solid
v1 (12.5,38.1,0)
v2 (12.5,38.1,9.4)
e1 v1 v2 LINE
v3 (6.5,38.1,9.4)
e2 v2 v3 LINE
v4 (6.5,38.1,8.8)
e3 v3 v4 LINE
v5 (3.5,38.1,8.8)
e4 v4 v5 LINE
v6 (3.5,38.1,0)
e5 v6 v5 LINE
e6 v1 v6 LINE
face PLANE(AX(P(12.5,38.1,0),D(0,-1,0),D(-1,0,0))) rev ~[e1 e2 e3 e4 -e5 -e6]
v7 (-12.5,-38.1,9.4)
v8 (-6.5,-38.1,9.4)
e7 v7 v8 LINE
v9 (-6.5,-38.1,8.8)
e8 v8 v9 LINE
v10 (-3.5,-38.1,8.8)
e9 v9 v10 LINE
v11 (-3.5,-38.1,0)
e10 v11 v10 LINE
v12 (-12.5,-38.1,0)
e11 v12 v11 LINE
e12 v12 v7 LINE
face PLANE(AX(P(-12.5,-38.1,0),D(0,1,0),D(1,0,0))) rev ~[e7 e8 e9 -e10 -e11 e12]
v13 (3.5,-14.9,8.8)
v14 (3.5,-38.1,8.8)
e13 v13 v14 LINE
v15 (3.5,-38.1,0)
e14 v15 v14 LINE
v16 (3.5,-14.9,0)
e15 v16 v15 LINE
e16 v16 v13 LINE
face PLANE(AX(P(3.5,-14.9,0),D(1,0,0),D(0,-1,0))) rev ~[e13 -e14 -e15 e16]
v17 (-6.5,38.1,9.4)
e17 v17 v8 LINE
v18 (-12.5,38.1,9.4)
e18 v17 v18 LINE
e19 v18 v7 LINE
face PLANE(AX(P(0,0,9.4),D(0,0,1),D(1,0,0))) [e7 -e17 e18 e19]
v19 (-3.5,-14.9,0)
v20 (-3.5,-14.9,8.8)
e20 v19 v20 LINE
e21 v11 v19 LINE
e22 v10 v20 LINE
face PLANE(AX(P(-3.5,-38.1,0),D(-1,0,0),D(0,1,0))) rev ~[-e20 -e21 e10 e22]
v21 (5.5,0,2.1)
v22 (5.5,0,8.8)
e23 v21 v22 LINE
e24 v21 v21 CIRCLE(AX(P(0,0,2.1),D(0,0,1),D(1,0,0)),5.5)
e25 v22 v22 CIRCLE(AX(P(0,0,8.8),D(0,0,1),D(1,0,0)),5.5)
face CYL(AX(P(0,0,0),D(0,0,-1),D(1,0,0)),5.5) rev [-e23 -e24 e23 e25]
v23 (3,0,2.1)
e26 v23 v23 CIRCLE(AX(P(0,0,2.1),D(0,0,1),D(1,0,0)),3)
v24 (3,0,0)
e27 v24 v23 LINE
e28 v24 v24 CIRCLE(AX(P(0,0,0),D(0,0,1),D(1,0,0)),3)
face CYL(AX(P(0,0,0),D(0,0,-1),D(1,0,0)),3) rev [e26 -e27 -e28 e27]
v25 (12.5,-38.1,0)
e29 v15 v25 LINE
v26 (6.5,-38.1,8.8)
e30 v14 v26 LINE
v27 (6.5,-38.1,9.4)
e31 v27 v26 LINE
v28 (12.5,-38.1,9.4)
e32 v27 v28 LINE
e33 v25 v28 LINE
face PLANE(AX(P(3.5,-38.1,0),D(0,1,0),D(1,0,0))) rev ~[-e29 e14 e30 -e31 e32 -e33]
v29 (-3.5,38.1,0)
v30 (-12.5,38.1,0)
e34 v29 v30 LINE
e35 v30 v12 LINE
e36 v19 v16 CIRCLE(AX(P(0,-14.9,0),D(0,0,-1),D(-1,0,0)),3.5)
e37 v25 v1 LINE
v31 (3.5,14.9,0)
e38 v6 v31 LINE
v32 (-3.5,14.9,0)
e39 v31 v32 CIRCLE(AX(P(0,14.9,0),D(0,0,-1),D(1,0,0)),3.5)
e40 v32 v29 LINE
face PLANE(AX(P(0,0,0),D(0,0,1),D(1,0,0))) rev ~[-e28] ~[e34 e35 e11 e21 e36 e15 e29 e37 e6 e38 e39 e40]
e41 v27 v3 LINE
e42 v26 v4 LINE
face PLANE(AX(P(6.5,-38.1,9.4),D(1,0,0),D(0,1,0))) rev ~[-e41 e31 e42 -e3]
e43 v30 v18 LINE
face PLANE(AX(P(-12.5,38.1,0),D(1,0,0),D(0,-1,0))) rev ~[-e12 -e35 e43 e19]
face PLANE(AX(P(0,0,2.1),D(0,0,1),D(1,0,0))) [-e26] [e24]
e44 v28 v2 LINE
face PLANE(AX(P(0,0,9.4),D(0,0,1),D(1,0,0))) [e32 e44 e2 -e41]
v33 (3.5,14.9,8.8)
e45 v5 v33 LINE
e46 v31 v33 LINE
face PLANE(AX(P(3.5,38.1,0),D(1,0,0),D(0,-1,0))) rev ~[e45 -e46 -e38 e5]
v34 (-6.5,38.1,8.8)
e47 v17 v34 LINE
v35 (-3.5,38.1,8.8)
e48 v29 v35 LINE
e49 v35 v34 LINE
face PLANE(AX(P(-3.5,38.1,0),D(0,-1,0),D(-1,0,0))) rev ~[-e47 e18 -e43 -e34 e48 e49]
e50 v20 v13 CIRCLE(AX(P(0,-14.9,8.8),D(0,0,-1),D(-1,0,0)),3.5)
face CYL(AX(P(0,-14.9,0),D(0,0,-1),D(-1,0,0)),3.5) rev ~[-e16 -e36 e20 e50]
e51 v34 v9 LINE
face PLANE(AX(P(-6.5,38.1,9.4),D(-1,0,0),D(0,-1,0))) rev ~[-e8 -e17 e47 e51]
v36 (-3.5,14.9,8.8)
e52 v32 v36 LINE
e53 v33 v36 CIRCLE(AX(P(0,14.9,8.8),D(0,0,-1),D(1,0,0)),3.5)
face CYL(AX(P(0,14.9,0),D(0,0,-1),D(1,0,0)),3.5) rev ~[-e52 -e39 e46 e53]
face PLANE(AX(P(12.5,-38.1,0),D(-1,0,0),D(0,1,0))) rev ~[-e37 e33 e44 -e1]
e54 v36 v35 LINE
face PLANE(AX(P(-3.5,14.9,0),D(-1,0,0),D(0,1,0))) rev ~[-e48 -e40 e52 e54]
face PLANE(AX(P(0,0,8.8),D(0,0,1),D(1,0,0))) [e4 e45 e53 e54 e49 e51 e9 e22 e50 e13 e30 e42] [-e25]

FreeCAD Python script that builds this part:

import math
import FreeCAD as App
import Part
import Sketcher
Q = App.Units.Quantity

doc = App.newDocument("Part")
body = doc.addObject("PartDesign::Body", "Body")

# Sketch on XY plane
sketch1 = body.newObject("Sketcher::SketchObject", "Sketch")
sketch1.AttachmentSupport = (doc.getObject("XY_Plane"), [""])
sketch1.MapMode = "FlatFace"
sketch1.addGeometry([
    Part.LineSegment(App.Vector(3.5, -38.1, 0), App.Vector(12.5, -38.1, 0)),  # 0
    Part.LineSegment(App.Vector(12.5, -38.1, 0), App.Vector(12.5, 38.1, 0)),  # 1
    Part.LineSegment(App.Vector(12.5, 38.1, 0), App.Vector(3.5, 38.1, 0)),  # 2
    Part.LineSegment(App.Vector(3.5, 38.1, 0), App.Vector(3.5, 14.9, 0)),  # 3
    Part.ArcOfCircle(Part.Circle(App.Vector(0, 14.9, 0), App.Vector(0, 0, 1), 3.5), math.radians(180), math.radians(360)),  # 4
    Part.LineSegment(App.Vector(-3.5, 14.9, 0), App.Vector(-3.5, 38.1, 0)),  # 5
    Part.LineSegment(App.Vector(-3.5, 38.1, 0), App.Vector(-12.5, 38.1, 0)),  # 6
    Part.LineSegment(App.Vector(-12.5, 38.1, 0), App.Vector(-12.5, -38.1, 0)),  # 7
    Part.LineSegment(App.Vector(-12.5, -38.1, 0), App.Vector(-3.5, -38.1, 0)),  # 8
    Part.LineSegment(App.Vector(-3.5, -38.1, 0), App.Vector(-3.5, -14.9, 0)),  # 9
    Part.ArcOfCircle(Part.Circle(App.Vector(0, -14.9, 0), App.Vector(0, 0, 1), 3.5), math.radians(0), math.radians(180)),  # 10
    Part.LineSegment(App.Vector(3.5, -14.9, 0), App.Vector(3.5, -38.1, 0)),  # 11
    Part.Circle(App.Vector(0, 0, 0), App.Vector(0, 0, 1), 5.5),  # 12
], False)
sketch1.addConstraint([
    Sketcher.Constraint("Coincident", 0, 2, 1, 1),
    Sketcher.Constraint("Coincident", 1, 2, 2, 1),
    Sketcher.Constraint("Coincident", 2, 2, 3, 1),
    Sketcher.Constraint("Tangent", 3, 2, 4, 2),
    Sketcher.Constraint("Tangent", 4, 1, 5, 1),
    Sketcher.Constraint("Coincident", 5, 2, 6, 1),
    Sketcher.Constraint("Coincident", 6, 2, 7, 1),
    Sketcher.Constraint("Coincident", 7, 2, 8, 1),
    Sketcher.Constraint("Coincident", 8, 2, 9, 1),
    Sketcher.Constraint("Tangent", 9, 2, 10, 2),
    Sketcher.Constraint("Tangent", 10, 1, 11, 1),
    Sketcher.Constraint("Coincident", 11, 2, 0, 1),
    Sketcher.Constraint("Horizontal", 0),
    Sketcher.Constraint("Vertical", 1),
    Sketcher.Constraint("Horizontal", 2),
    Sketcher.Constraint("Vertical", 3),
    Sketcher.Constraint("Vertical", 5),
    Sketcher.Constraint("Horizontal", 6),
    Sketcher.Constraint("Vertical", 7),
    Sketcher.Constraint("Horizontal", 8),
    Sketcher.Constraint("Vertical", 9),
    Sketcher.Constraint("Vertical", 11),
    Sketcher.Constraint("Coincident", 12, 3, -1, 1),
    Sketcher.Constraint("Equal", 4, 10),
    Sketcher.Constraint("Symmetric", 4, 3, 10, 3, -1, 1),
    Sketcher.Constraint("Symmetric", 0, 2, 6, 2, -1, 1),
    Sketcher.Constraint("Symmetric", 2, 2, 5, 2, -2),
    Sketcher.Constraint("Horizontal", 0, 2, 7, 2),
    Sketcher.Constraint("Diameter", 12, Q("11 mm")),
    Sketcher.Constraint("Radius", 4, Q("3.5 mm")),
    Sketcher.Constraint("DistanceX", 0, 1, 0, 2, Q("9 mm")),
    Sketcher.Constraint("DistanceY", 1, 1, 1, 2, Q("76.2 mm")),
    Sketcher.Constraint("DistanceY", 3, 2, 3, 1, Q("23.2 mm")),
])
pad1 = body.newObject("PartDesign::Pad", "Pad")
pad1.Profile = sketch1
pad1.Length = 9.4

# Sketch on XY plane
sketch2 = body.newObject("Sketcher::SketchObject", "Sketch001")
sketch2.AttachmentSupport = (doc.getObject("XY_Plane"), [""])
sketch2.MapMode = "FlatFace"
sketch2.addGeometry([
    Part.Circle(App.Vector(0, 0, 0), App.Vector(0, 0, 1), 5.5),
    Part.Circle(App.Vector(0, 0, 0), App.Vector(0, 0, 1), 3),
], False)
sketch2.addConstraint([
    Sketcher.Constraint("Coincident", 0, 3, -1, 1),
    Sketcher.Constraint("Coincident", 1, 3, -1, 1),
    Sketcher.Constraint("Diameter", 0, Q("11 mm")),
    Sketcher.Constraint("Diameter", 1, Q("6 mm")),
])
pad2 = body.newObject("PartDesign::Pad", "Pad001")
pad2.Profile = sketch2
pad2.Length = 2.1

# Sketch on XY plane
sketch3 = body.newObject("Sketcher::SketchObject", "Sketch002")
sketch3.AttachmentSupport = (doc.getObject("XY_Plane"), [""])
sketch3.MapMode = "FlatFace"
sketch3.AttachmentOffset = App.Placement(App.Vector(0, 0, 9.4), App.Rotation())
sketch3.addGeometry([
    Part.LineSegment(App.Vector(6.5, -38.1, 0), App.Vector(6.5, 38.1, 0)),  # 0
    Part.LineSegment(App.Vector(6.5, 38.1, 0), App.Vector(3.5, 38.1, 0)),  # 1
    Part.LineSegment(App.Vector(3.5, 38.1, 0), App.Vector(3.5, 14.9, 0)),  # 2
    Part.ArcOfCircle(Part.Circle(App.Vector(0, 14.9, 0), App.Vector(0, 0, 1), 3.5), math.radians(180), math.radians(360)),  # 3
    Part.LineSegment(App.Vector(-3.5, 14.9, 0), App.Vector(-3.5, 38.1, 0)),  # 4
    Part.LineSegment(App.Vector(-3.5, 38.1, 0), App.Vector(-6.5, 38.1, 0)),  # 5
    Part.LineSegment(App.Vector(-6.5, 38.1, 0), App.Vector(-6.5, -38.1, 0)),  # 6
    Part.LineSegment(App.Vector(-6.5, -38.1, 0), App.Vector(-3.5, -38.1, 0)),  # 7
    Part.LineSegment(App.Vector(-3.5, -38.1, 0), App.Vector(-3.5, -14.9, 0)),  # 8
    Part.ArcOfCircle(Part.Circle(App.Vector(0, -14.9, 0), App.Vector(0, 0, 1), 3.5), math.radians(0), math.radians(180)),  # 9
    Part.LineSegment(App.Vector(3.5, -14.9, 0), App.Vector(3.5, -38.1, 0)),  # 10
    Part.LineSegment(App.Vector(3.5, -38.1, 0), App.Vector(6.5, -38.1, 0)),  # 11
    Part.Circle(App.Vector(0, 0, 0), App.Vector(0, 0, 1), 5.5),  # 12
], False)
sketch3.addConstraint([
    Sketcher.Constraint("Coincident", 0, 2, 1, 1),
    Sketcher.Constraint("Coincident", 1, 2, 2, 1),
    Sketcher.Constraint("Tangent", 2, 2, 3, 2),
    Sketcher.Constraint("Tangent", 3, 1, 4, 1),
    Sketcher.Constraint("Coincident", 4, 2, 5, 1),
    Sketcher.Constraint("Coincident", 5, 2, 6, 1),
    Sketcher.Constraint("Coincident", 6, 2, 7, 1),
    Sketcher.Constraint("Coincident", 7, 2, 8, 1),
    Sketcher.Constraint("Tangent", 8, 2, 9, 2),
    Sketcher.Constraint("Tangent", 9, 1, 10, 1),
    Sketcher.Constraint("Coincident", 10, 2, 11, 1),
    Sketcher.Constraint("Coincident", 11, 2, 0, 1),
    Sketcher.Constraint("Vertical", 0),
    Sketcher.Constraint("Horizontal", 1),
    Sketcher.Constraint("Vertical", 2),
    Sketcher.Constraint("Vertical", 4),
    Sketcher.Constraint("Horizontal", 5),
    Sketcher.Constraint("Vertical", 6),
    Sketcher.Constraint("Horizontal", 7),
    Sketcher.Constraint("Vertical", 8),
    Sketcher.Constraint("Vertical", 10),
    Sketcher.Constraint("Horizontal", 11),
    Sketcher.Constraint("Coincident", 12, 3, -1, 1),
    Sketcher.Constraint("Equal", 3, 9),
    Sketcher.Constraint("Symmetric", 3, 3, 9, 3, -1, 1),
    Sketcher.Constraint("Symmetric", 0, 2, 6, 2, -1, 1),
    Sketcher.Constraint("Symmetric", 1, 2, 4, 2, -2),
    Sketcher.Constraint("Horizontal", 7, 2, 10, 2),
    Sketcher.Constraint("Diameter", 12, Q("11 mm")),
    Sketcher.Constraint("Radius", 3, Q("3.5 mm")),
    Sketcher.Constraint("DistanceX", 1, 2, 1, 1, Q("3 mm")),
    Sketcher.Constraint("DistanceY", 0, 1, 0, 2, Q("76.2 mm")),
    Sketcher.Constraint("DistanceY", 2, 2, 2, 1, Q("23.2 mm")),
])
pocket1 = body.newObject("PartDesign::Pocket", "Pocket")
pocket1.Profile = sketch3
pocket1.Length = 0.6

doc.recompute()
